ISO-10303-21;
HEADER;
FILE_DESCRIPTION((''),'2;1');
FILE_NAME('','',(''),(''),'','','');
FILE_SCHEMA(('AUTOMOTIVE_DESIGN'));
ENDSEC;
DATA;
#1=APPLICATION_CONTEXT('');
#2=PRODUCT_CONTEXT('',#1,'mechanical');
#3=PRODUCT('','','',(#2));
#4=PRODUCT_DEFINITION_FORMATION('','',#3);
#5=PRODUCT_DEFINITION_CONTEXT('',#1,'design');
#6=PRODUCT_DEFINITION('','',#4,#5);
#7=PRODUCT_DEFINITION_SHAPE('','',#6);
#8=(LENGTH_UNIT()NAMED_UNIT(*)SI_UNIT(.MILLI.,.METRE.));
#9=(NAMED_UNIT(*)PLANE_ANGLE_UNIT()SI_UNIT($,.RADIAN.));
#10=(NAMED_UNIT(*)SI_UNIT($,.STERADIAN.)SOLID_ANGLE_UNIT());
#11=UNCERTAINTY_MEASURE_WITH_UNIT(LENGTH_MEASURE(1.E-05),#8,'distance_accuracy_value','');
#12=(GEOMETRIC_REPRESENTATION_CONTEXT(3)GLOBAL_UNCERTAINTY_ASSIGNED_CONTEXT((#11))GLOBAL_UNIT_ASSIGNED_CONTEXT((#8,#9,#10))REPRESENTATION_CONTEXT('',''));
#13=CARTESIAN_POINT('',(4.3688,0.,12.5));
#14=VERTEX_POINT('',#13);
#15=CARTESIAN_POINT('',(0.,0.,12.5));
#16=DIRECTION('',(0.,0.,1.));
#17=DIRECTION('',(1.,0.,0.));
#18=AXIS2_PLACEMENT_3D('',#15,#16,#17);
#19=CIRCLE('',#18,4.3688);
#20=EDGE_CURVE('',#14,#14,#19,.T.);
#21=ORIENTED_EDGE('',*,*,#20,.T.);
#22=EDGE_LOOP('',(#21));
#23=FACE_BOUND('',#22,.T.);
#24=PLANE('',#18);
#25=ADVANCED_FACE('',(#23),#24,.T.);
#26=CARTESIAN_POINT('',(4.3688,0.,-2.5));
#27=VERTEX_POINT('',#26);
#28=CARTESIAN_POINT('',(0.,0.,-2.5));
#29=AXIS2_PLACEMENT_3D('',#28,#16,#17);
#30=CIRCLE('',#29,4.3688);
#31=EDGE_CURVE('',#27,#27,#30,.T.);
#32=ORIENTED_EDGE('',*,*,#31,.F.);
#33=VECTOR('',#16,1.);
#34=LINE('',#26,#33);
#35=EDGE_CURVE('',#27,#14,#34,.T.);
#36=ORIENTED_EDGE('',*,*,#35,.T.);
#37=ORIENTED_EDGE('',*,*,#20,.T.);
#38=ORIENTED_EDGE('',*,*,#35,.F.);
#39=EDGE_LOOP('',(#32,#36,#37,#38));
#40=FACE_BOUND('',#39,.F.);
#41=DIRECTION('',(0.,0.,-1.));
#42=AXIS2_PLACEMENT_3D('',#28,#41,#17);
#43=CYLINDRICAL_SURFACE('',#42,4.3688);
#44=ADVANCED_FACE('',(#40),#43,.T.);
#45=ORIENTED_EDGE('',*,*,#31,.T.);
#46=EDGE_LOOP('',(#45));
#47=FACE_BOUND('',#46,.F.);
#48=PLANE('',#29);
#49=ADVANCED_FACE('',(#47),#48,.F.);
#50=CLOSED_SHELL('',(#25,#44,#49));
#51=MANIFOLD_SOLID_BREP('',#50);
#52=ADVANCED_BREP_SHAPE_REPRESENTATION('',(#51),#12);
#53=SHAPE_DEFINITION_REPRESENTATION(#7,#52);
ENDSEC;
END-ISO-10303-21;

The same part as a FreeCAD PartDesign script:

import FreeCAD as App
import Part
import Sketcher

doc = App.newDocument("Part")
body = doc.addObject("PartDesign::Body", "Body")

sketch1 = body.newObject("Sketcher::SketchObject", "Sketch")
sketch1.AttachmentSupport = (doc.getObject("XY_Plane"), [""])
sketch1.MapMode = "FlatFace"
sketch1.AttachmentOffset = App.Placement(App.Vector(0, 0, -2.5), App.Rotation())
sketch1.addGeometry(Part.Circle(App.Vector(0, 0, 0), App.Vector(0, 0, 1), 4.4), False)
sketch1.addConstraint([
    Sketcher.Constraint("Coincident", 0, 3, -1, 1),
    Sketcher.Constraint("Diameter", 0, 8.7376),
])
pad1 = body.newObject("PartDesign::Pad", "Pad")
pad1.Profile = sketch1
pad1.Length = 15

doc.recompute()
